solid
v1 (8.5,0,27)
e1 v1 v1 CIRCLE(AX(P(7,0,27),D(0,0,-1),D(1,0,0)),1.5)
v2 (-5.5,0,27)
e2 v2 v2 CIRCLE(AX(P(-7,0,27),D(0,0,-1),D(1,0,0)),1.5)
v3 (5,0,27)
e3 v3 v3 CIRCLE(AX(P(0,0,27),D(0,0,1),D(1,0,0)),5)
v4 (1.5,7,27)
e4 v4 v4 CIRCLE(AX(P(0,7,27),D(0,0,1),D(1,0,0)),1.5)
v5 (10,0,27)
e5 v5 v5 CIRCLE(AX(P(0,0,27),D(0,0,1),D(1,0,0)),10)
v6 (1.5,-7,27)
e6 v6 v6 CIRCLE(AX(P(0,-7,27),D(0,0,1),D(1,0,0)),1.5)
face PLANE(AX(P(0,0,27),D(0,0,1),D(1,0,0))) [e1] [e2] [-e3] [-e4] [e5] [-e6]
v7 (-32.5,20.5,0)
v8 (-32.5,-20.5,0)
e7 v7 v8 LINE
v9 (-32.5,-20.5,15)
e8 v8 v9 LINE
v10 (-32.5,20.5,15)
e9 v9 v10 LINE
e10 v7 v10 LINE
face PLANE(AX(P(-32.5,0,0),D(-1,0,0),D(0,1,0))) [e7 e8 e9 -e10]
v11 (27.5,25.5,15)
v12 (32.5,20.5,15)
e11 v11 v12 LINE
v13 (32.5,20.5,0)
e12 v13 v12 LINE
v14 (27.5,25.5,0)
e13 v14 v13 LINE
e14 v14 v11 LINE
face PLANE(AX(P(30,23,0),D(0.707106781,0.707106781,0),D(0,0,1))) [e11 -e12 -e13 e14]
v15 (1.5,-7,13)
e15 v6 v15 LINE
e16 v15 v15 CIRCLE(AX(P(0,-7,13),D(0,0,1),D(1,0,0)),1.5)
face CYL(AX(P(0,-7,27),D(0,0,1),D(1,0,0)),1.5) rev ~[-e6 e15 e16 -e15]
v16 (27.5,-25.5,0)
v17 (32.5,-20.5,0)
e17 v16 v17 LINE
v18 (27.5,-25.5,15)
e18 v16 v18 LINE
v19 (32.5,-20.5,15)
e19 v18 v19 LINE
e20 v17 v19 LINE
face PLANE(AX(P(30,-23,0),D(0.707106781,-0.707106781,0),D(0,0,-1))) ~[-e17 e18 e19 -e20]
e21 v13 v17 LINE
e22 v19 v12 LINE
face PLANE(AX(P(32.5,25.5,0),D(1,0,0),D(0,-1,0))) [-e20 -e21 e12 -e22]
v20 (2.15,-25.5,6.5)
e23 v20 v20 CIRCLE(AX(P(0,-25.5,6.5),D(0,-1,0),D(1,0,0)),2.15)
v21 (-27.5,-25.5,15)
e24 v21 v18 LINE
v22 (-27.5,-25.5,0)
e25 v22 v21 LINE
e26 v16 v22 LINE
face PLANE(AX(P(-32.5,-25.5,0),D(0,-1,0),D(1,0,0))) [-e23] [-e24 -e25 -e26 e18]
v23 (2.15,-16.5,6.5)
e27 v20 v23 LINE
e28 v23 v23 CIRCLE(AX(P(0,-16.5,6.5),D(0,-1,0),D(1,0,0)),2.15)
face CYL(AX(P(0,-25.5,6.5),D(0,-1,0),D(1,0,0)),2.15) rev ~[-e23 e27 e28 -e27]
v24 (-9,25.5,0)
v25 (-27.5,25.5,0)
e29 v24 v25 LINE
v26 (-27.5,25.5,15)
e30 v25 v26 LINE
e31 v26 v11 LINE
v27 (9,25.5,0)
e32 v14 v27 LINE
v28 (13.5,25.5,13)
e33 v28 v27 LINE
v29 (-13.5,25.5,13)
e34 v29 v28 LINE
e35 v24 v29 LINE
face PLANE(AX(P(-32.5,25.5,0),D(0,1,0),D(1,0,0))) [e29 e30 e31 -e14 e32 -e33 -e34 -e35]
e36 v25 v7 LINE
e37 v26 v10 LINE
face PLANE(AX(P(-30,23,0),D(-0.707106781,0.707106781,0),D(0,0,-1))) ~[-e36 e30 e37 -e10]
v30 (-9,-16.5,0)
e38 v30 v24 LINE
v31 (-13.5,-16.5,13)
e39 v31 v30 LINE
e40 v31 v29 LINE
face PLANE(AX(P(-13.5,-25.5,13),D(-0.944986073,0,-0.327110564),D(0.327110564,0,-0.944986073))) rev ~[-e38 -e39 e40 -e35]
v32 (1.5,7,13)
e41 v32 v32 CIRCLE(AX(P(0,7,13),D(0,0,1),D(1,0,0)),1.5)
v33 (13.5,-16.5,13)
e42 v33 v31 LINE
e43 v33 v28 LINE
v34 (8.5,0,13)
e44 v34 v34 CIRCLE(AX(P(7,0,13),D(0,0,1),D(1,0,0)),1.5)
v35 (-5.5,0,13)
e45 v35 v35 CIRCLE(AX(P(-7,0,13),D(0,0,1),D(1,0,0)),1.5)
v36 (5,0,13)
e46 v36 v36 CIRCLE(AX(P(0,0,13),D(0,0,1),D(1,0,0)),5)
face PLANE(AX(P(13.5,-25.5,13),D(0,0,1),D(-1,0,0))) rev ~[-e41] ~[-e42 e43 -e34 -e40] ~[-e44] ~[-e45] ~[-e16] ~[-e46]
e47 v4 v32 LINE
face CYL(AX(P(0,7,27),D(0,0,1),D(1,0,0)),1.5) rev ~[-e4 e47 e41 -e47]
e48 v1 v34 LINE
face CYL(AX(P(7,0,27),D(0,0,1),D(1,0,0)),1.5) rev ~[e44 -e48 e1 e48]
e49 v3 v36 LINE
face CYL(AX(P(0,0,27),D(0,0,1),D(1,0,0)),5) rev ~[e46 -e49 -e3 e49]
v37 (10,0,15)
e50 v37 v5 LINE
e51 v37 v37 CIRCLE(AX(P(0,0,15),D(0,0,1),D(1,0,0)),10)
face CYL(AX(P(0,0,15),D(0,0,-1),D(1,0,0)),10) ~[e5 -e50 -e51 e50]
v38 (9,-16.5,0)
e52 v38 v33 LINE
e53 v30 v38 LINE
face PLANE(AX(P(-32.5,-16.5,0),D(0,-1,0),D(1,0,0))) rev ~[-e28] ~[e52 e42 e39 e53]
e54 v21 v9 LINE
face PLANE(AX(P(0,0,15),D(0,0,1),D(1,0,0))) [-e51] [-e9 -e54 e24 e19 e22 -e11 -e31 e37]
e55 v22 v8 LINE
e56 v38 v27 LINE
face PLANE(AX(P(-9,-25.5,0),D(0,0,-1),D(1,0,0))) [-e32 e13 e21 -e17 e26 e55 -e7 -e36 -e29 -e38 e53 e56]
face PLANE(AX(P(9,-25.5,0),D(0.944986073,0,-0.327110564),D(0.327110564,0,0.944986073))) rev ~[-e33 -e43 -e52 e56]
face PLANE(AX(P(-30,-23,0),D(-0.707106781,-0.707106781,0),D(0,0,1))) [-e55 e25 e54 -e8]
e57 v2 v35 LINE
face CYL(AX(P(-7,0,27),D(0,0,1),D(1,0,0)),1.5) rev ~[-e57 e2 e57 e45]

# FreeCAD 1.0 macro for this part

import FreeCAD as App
import Part
import Sketcher


def edges_at(feature, points):
    """Names of the edges that pass closest to the given points."""
    edges = feature.Shape.Edges
    near = lambda p: min(range(len(edges)), key=lambda i: edges[i].distToShape(Part.Vertex(*p))[0])
    return sorted({f"Edge{near(p) + 1}" for p in points})

doc = App.newDocument("Part")
params = doc.addObject("Spreadsheet::Sheet", "Params")
for row, (alias, value) in enumerate([
    ("sketch1_width", "65 mm"),
    ("sketch1_height", "51 mm"),
    ("pad1_length", "15 mm"),
    ("sketch2_width", "18 mm"),
    ("sketch2_width2", "27 mm"),
    ("sketch3_diameter", "4.3 mm"),
    ("sketch3_width", "18 mm"),
    ("sketch3_width2", "27 mm"),
    ("pad2_length", "9 mm"),
    ("chamfer_size", "5 mm"),
    ("sketch4_diameter", "20 mm"),
    ("pad3_length", "12 mm"),
    ("sketch5_diameter", "10 mm"),
    ("sketch6_diameter", "3 mm"),
], start=1):
    params.set(f"A{row}", alias)
    params.set(f"B{row}", "=" + value)
    params.setAlias(f"B{row}", alias)

body = doc.addObject("PartDesign::Body", "Body")

sketch1 = body.newObject("Sketcher::SketchObject", "Sketch")
sketch1.AttachmentSupport = (doc.getObject("XY_Plane"), [""])
sketch1.MapMode = "FlatFace"
sketch1.addGeometry(Part.LineSegment(App.Vector(-32.5, 25.5, 0), App.Vector(-32.5, -25.5, 0)), False)
sketch1.addGeometry(Part.LineSegment(App.Vector(-32.5, -25.5, 0), App.Vector(32.5, -25.5, 0)), False)
sketch1.addGeometry(Part.LineSegment(App.Vector(32.5, -25.5, 0), App.Vector(32.5, 25.5, 0)), False)
sketch1.addGeometry(Part.LineSegment(App.Vector(32.5, 25.5, 0), App.Vector(-32.5, 25.5, 0)), False)
sketch1.addConstraint(Sketcher.Constraint("Coincident", 0, 2, 1, 1))
sketch1.addConstraint(Sketcher.Constraint("Coincident", 1, 2, 2, 1))
sketch1.addConstraint(Sketcher.Constraint("Coincident", 2, 2, 3, 1))
sketch1.addConstraint(Sketcher.Constraint("Coincident", 3, 2, 0, 1))
sketch1.addConstraint(Sketcher.Constraint("Vertical", 0))
sketch1.addConstraint(Sketcher.Constraint("Horizontal", 1))
sketch1.addConstraint(Sketcher.Constraint("Vertical", 2))
sketch1.addConstraint(Sketcher.Constraint("Horizontal", 3))
sketch1.addConstraint(Sketcher.Constraint("Symmetric", 0, 2, 2, 2, -1, 1))
sketch1.addConstraint(Sketcher.Constraint("DistanceX", 1, 1, 1, 2, 65.0))
sketch1.addConstraint(Sketcher.Constraint("DistanceY", 0, 2, 0, 1, 51.0))
sketch1.setExpression("Constraints[9]", "Params.sketch1_width")
sketch1.setExpression("Constraints[10]", "Params.sketch1_height")
pad1 = body.newObject("PartDesign::Pad", "Pad")
pad1.Profile = sketch1
pad1.setExpression("Length", "Params.pad1_length")

sketch2 = body.newObject("Sketcher::SketchObject", "Sketch001")
sketch2.AttachmentSupport = (doc.getObject("XZ_Plane"), [""])
sketch2.MapMode = "FlatFace"
sketch2.AttachmentOffset = App.Placement(App.Vector(0, 0, 25.5), App.Rotation())
sketch2.addGeometry(Part.LineSegment(App.Vector(-13.5, 13, 0), App.Vector(-9, 0, 0)), False)
sketch2.addGeometry(Part.LineSegment(App.Vector(-9, 0, 0), App.Vector(9, 0, 0)), False)
sketch2.addGeometry(Part.LineSegment(App.Vector(9, 0, 0), App.Vector(13.5, 13, 0)), False)
sketch2.addGeometry(Part.LineSegment(App.Vector(13.5, 13, 0), App.Vector(-13.5, 13, 0)), False)
sketch2.addConstraint(Sketcher.Constraint("Coincident", 0, 2, 1, 1))
sketch2.addConstraint(Sketcher.Constraint("Coincident", 1, 2, 2, 1))
sketch2.addConstraint(Sketcher.Constraint("Coincident", 2, 2, 3, 1))
sketch2.addConstraint(Sketcher.Constraint("Coincident", 3, 2, 0, 1))
sketch2.addConstraint(Sketcher.Constraint("Horizontal", 1))
sketch2.addConstraint(Sketcher.Constraint("Horizontal", 3))
sketch2.addConstraint(Sketcher.Constraint("Symmetric", 0, 2, 1, 2, -1, 1))
sketch2.addConstraint(Sketcher.Constraint("Equal", 0, 2))
sketch2.addConstraint(Sketcher.Constraint("DistanceX", 1, 1, 1, 2, 18.0))
sketch2.addConstraint(Sketcher.Constraint("DistanceX", 3, 2, 3, 1, 27.0))
sketch2.addConstraint(Sketcher.Constraint("DistanceY", -1, 1, 2, 2, 13.0))
sketch2.setExpression("Constraints[8]", "Params.sketch2_width")
sketch2.setExpression("Constraints[9]", "Params.sketch2_width2")
pocket1 = body.newObject("PartDesign::Pocket", "Pocket")
pocket1.Profile = sketch2
pocket1.Type = "ThroughAll"

sketch3 = body.newObject("Sketcher::SketchObject", "Sketch002")
sketch3.AttachmentSupport = (doc.getObject("XZ_Plane"), [""])
sketch3.MapMode = "FlatFace"
sketch3.AttachmentOffset = App.Placement(App.Vector(0, 0, 25.5), App.Rotation())
sketch3.addGeometry(Part.LineSegment(App.Vector(-13.5, 13, 0), App.Vector(-9, 0, 0)), False)
sketch3.addGeometry(Part.LineSegment(App.Vector(-9, 0, 0), App.Vector(9, 0, 0)), False)
sketch3.addGeometry(Part.LineSegment(App.Vector(9, 0, 0), App.Vector(13.5, 13, 0)), False)
sketch3.addGeometry(Part.LineSegment(App.Vector(13.5, 13, 0), App.Vector(-13.5, 13, 0)), False)
sketch3.addGeometry(Part.Circle(App.Vector(0, 6.5, 0), App.Vector(0, 0, 1), 2.15), False)
sketch3.addConstraint(Sketcher.Constraint("Coincident", 0, 2, 1, 1))
sketch3.addConstraint(Sketcher.Constraint("Coincident", 1, 2, 2, 1))
sketch3.addConstraint(Sketcher.Constraint("Coincident", 2, 2, 3, 1))
sketch3.addConstraint(Sketcher.Constraint("Coincident", 3, 2, 0, 1))
sketch3.addConstraint(Sketcher.Constraint("Horizontal", 1))
sketch3.addConstraint(Sketcher.Constraint("Horizontal", 3))
sketch3.addConstraint(Sketcher.Constraint("Symmetric", 0, 2, 1, 2, -1, 1))
sketch3.addConstraint(Sketcher.Constraint("PointOnObject", 4, 3, -2))
sketch3.addConstraint(Sketcher.Constraint("Equal", 0, 2))
sketch3.addConstraint(Sketcher.Constraint("Diameter", 4, 4.3))
sketch3.addConstraint(Sketcher.Constraint("DistanceX", 1, 1, 1, 2, 18.0))
sketch3.addConstraint(Sketcher.Constraint("DistanceX", 3, 2, 3, 1, 27.0))
sketch3.addConstraint(Sketcher.Constraint("DistanceY", -1, 1, 2, 2, 13.0))
sketch3.addConstraint(Sketcher.Constraint("DistanceY", -1, 1, 4, 3, 6.5))
sketch3.setExpression("Constraints[9]", "Params.sketch3_diameter")
sketch3.setExpression("Constraints[10]", "Params.sketch3_width")
sketch3.setExpression("Constraints[11]", "Params.sketch3_width2")
pad2 = body.newObject("PartDesign::Pad", "Pad001")
pad2.Profile = sketch3
pad2.setExpression("Length", "Params.pad2_length")
pad2.Reversed = True
doc.recompute()

chamfer = body.newObject("PartDesign::Chamfer", "Chamfer")
chamfer.Base = (pad2, edges_at(pad2, [
    (-32.5, 25.5, 7.5),
    (32.5, 25.5, 7.5),
    (32.5, -25.5, 7.5),
    (-32.5, -25.5, 7.5),
]))
chamfer.setExpression("Size", "Params.chamfer_size")

sketch4 = body.newObject("Sketcher::SketchObject", "Sketch003")
sketch4.AttachmentSupport = (doc.getObject("XY_Plane"), [""])
sketch4.MapMode = "FlatFace"
sketch4.AttachmentOffset = App.Placement(App.Vector(0, 0, 15), App.Rotation())
sketch4.addGeometry(Part.Circle(App.Vector(0, 0, 0), App.Vector(0, 0, 1), 10), False)
sketch4.addConstraint(Sketcher.Constraint("Coincident", 0, 3, -1, 1))
sketch4.addConstraint(Sketcher.Constraint("Diameter", 0, 20.0))
sketch4.setExpression("Constraints[1]", "Params.sketch4_diameter")
pad3 = body.newObject("PartDesign::Pad", "Pad002")
pad3.Profile = sketch4
pad3.setExpression("Length", "Params.pad3_length")

sketch5 = body.newObject("Sketcher::SketchObject", "Sketch004")
sketch5.AttachmentSupport = (doc.getObject("XY_Plane"), [""])
sketch5.MapMode = "FlatFace"
sketch5.AttachmentOffset = App.Placement(App.Vector(0, 0, 27), App.Rotation())
sketch5.addGeometry(Part.Circle(App.Vector(0, 0, 0), App.Vector(0, 0, 1), 5), False)
sketch5.addConstraint(Sketcher.Constraint("Coincident", 0, 3, -1, 1))
sketch5.addConstraint(Sketcher.Constraint("Diameter", 0, 10.0))
sketch5.setExpression("Constraints[1]", "Params.sketch5_diameter")
pocket2 = body.newObject("PartDesign::Pocket", "Pocket001")
pocket2.Profile = sketch5
pocket2.Type = "ThroughAll"

sketch6 = body.newObject("Sketcher::SketchObject", "Sketch005")
sketch6.AttachmentSupport = (doc.getObject("XY_Plane"), [""])
sketch6.MapMode = "FlatFace"
sketch6.AttachmentOffset = App.Placement(App.Vector(0, 0, 27), App.Rotation())
sketch6.addGeometry(Part.Circle(App.Vector(7, 0, 0), App.Vector(0, 0, 1), 1.5), False)
sketch6.addGeometry(Part.Circle(App.Vector(-7, 0, 0), App.Vector(0, 0, 1), 1.5), False)
sketch6.addGeometry(Part.Circle(App.Vector(0, 7, 0), App.Vector(0, 0, 1), 1.5), False)
sketch6.addGeometry(Part.Circle(App.Vector(0, -7, 0), App.Vector(0, 0, 1), 1.5), False)
sketch6.addConstraint(Sketcher.Constraint("Equal", 0, 1))
sketch6.addConstraint(Sketcher.Constraint("Equal", 1, 2))
sketch6.addConstraint(Sketcher.Constraint("Equal", 2, 3))
sketch6.addConstraint(Sketcher.Constraint("Symmetric", 0, 3, 1, 3, -1, 1))
sketch6.addConstraint(Sketcher.Constraint("Symmetric", 2, 3, 3, 3, -1, 1))
sketch6.addConstraint(Sketcher.Constraint("PointOnObject", 0, 3, -1))
sketch6.addConstraint(Sketcher.Constraint("PointOnObject", 2, 3, -2))
sketch6.addConstraint(Sketcher.Constraint("Diameter", 0, 3.0))
sketch6.addConstraint(Sketcher.Constraint("DistanceX", -1, 1, 0, 3, 7.0))
sketch6.addConstraint(Sketcher.Constraint("DistanceY", -1, 1, 2, 3, 7.0))
sketch6.setExpression("Constraints[7]", "Params.sketch6_diameter")
pocket3 = body.newObject("PartDesign::Pocket", "Pocket002")
pocket3.Profile = sketch6
pocket3.Type = "ThroughAll"

doc.recompute()
